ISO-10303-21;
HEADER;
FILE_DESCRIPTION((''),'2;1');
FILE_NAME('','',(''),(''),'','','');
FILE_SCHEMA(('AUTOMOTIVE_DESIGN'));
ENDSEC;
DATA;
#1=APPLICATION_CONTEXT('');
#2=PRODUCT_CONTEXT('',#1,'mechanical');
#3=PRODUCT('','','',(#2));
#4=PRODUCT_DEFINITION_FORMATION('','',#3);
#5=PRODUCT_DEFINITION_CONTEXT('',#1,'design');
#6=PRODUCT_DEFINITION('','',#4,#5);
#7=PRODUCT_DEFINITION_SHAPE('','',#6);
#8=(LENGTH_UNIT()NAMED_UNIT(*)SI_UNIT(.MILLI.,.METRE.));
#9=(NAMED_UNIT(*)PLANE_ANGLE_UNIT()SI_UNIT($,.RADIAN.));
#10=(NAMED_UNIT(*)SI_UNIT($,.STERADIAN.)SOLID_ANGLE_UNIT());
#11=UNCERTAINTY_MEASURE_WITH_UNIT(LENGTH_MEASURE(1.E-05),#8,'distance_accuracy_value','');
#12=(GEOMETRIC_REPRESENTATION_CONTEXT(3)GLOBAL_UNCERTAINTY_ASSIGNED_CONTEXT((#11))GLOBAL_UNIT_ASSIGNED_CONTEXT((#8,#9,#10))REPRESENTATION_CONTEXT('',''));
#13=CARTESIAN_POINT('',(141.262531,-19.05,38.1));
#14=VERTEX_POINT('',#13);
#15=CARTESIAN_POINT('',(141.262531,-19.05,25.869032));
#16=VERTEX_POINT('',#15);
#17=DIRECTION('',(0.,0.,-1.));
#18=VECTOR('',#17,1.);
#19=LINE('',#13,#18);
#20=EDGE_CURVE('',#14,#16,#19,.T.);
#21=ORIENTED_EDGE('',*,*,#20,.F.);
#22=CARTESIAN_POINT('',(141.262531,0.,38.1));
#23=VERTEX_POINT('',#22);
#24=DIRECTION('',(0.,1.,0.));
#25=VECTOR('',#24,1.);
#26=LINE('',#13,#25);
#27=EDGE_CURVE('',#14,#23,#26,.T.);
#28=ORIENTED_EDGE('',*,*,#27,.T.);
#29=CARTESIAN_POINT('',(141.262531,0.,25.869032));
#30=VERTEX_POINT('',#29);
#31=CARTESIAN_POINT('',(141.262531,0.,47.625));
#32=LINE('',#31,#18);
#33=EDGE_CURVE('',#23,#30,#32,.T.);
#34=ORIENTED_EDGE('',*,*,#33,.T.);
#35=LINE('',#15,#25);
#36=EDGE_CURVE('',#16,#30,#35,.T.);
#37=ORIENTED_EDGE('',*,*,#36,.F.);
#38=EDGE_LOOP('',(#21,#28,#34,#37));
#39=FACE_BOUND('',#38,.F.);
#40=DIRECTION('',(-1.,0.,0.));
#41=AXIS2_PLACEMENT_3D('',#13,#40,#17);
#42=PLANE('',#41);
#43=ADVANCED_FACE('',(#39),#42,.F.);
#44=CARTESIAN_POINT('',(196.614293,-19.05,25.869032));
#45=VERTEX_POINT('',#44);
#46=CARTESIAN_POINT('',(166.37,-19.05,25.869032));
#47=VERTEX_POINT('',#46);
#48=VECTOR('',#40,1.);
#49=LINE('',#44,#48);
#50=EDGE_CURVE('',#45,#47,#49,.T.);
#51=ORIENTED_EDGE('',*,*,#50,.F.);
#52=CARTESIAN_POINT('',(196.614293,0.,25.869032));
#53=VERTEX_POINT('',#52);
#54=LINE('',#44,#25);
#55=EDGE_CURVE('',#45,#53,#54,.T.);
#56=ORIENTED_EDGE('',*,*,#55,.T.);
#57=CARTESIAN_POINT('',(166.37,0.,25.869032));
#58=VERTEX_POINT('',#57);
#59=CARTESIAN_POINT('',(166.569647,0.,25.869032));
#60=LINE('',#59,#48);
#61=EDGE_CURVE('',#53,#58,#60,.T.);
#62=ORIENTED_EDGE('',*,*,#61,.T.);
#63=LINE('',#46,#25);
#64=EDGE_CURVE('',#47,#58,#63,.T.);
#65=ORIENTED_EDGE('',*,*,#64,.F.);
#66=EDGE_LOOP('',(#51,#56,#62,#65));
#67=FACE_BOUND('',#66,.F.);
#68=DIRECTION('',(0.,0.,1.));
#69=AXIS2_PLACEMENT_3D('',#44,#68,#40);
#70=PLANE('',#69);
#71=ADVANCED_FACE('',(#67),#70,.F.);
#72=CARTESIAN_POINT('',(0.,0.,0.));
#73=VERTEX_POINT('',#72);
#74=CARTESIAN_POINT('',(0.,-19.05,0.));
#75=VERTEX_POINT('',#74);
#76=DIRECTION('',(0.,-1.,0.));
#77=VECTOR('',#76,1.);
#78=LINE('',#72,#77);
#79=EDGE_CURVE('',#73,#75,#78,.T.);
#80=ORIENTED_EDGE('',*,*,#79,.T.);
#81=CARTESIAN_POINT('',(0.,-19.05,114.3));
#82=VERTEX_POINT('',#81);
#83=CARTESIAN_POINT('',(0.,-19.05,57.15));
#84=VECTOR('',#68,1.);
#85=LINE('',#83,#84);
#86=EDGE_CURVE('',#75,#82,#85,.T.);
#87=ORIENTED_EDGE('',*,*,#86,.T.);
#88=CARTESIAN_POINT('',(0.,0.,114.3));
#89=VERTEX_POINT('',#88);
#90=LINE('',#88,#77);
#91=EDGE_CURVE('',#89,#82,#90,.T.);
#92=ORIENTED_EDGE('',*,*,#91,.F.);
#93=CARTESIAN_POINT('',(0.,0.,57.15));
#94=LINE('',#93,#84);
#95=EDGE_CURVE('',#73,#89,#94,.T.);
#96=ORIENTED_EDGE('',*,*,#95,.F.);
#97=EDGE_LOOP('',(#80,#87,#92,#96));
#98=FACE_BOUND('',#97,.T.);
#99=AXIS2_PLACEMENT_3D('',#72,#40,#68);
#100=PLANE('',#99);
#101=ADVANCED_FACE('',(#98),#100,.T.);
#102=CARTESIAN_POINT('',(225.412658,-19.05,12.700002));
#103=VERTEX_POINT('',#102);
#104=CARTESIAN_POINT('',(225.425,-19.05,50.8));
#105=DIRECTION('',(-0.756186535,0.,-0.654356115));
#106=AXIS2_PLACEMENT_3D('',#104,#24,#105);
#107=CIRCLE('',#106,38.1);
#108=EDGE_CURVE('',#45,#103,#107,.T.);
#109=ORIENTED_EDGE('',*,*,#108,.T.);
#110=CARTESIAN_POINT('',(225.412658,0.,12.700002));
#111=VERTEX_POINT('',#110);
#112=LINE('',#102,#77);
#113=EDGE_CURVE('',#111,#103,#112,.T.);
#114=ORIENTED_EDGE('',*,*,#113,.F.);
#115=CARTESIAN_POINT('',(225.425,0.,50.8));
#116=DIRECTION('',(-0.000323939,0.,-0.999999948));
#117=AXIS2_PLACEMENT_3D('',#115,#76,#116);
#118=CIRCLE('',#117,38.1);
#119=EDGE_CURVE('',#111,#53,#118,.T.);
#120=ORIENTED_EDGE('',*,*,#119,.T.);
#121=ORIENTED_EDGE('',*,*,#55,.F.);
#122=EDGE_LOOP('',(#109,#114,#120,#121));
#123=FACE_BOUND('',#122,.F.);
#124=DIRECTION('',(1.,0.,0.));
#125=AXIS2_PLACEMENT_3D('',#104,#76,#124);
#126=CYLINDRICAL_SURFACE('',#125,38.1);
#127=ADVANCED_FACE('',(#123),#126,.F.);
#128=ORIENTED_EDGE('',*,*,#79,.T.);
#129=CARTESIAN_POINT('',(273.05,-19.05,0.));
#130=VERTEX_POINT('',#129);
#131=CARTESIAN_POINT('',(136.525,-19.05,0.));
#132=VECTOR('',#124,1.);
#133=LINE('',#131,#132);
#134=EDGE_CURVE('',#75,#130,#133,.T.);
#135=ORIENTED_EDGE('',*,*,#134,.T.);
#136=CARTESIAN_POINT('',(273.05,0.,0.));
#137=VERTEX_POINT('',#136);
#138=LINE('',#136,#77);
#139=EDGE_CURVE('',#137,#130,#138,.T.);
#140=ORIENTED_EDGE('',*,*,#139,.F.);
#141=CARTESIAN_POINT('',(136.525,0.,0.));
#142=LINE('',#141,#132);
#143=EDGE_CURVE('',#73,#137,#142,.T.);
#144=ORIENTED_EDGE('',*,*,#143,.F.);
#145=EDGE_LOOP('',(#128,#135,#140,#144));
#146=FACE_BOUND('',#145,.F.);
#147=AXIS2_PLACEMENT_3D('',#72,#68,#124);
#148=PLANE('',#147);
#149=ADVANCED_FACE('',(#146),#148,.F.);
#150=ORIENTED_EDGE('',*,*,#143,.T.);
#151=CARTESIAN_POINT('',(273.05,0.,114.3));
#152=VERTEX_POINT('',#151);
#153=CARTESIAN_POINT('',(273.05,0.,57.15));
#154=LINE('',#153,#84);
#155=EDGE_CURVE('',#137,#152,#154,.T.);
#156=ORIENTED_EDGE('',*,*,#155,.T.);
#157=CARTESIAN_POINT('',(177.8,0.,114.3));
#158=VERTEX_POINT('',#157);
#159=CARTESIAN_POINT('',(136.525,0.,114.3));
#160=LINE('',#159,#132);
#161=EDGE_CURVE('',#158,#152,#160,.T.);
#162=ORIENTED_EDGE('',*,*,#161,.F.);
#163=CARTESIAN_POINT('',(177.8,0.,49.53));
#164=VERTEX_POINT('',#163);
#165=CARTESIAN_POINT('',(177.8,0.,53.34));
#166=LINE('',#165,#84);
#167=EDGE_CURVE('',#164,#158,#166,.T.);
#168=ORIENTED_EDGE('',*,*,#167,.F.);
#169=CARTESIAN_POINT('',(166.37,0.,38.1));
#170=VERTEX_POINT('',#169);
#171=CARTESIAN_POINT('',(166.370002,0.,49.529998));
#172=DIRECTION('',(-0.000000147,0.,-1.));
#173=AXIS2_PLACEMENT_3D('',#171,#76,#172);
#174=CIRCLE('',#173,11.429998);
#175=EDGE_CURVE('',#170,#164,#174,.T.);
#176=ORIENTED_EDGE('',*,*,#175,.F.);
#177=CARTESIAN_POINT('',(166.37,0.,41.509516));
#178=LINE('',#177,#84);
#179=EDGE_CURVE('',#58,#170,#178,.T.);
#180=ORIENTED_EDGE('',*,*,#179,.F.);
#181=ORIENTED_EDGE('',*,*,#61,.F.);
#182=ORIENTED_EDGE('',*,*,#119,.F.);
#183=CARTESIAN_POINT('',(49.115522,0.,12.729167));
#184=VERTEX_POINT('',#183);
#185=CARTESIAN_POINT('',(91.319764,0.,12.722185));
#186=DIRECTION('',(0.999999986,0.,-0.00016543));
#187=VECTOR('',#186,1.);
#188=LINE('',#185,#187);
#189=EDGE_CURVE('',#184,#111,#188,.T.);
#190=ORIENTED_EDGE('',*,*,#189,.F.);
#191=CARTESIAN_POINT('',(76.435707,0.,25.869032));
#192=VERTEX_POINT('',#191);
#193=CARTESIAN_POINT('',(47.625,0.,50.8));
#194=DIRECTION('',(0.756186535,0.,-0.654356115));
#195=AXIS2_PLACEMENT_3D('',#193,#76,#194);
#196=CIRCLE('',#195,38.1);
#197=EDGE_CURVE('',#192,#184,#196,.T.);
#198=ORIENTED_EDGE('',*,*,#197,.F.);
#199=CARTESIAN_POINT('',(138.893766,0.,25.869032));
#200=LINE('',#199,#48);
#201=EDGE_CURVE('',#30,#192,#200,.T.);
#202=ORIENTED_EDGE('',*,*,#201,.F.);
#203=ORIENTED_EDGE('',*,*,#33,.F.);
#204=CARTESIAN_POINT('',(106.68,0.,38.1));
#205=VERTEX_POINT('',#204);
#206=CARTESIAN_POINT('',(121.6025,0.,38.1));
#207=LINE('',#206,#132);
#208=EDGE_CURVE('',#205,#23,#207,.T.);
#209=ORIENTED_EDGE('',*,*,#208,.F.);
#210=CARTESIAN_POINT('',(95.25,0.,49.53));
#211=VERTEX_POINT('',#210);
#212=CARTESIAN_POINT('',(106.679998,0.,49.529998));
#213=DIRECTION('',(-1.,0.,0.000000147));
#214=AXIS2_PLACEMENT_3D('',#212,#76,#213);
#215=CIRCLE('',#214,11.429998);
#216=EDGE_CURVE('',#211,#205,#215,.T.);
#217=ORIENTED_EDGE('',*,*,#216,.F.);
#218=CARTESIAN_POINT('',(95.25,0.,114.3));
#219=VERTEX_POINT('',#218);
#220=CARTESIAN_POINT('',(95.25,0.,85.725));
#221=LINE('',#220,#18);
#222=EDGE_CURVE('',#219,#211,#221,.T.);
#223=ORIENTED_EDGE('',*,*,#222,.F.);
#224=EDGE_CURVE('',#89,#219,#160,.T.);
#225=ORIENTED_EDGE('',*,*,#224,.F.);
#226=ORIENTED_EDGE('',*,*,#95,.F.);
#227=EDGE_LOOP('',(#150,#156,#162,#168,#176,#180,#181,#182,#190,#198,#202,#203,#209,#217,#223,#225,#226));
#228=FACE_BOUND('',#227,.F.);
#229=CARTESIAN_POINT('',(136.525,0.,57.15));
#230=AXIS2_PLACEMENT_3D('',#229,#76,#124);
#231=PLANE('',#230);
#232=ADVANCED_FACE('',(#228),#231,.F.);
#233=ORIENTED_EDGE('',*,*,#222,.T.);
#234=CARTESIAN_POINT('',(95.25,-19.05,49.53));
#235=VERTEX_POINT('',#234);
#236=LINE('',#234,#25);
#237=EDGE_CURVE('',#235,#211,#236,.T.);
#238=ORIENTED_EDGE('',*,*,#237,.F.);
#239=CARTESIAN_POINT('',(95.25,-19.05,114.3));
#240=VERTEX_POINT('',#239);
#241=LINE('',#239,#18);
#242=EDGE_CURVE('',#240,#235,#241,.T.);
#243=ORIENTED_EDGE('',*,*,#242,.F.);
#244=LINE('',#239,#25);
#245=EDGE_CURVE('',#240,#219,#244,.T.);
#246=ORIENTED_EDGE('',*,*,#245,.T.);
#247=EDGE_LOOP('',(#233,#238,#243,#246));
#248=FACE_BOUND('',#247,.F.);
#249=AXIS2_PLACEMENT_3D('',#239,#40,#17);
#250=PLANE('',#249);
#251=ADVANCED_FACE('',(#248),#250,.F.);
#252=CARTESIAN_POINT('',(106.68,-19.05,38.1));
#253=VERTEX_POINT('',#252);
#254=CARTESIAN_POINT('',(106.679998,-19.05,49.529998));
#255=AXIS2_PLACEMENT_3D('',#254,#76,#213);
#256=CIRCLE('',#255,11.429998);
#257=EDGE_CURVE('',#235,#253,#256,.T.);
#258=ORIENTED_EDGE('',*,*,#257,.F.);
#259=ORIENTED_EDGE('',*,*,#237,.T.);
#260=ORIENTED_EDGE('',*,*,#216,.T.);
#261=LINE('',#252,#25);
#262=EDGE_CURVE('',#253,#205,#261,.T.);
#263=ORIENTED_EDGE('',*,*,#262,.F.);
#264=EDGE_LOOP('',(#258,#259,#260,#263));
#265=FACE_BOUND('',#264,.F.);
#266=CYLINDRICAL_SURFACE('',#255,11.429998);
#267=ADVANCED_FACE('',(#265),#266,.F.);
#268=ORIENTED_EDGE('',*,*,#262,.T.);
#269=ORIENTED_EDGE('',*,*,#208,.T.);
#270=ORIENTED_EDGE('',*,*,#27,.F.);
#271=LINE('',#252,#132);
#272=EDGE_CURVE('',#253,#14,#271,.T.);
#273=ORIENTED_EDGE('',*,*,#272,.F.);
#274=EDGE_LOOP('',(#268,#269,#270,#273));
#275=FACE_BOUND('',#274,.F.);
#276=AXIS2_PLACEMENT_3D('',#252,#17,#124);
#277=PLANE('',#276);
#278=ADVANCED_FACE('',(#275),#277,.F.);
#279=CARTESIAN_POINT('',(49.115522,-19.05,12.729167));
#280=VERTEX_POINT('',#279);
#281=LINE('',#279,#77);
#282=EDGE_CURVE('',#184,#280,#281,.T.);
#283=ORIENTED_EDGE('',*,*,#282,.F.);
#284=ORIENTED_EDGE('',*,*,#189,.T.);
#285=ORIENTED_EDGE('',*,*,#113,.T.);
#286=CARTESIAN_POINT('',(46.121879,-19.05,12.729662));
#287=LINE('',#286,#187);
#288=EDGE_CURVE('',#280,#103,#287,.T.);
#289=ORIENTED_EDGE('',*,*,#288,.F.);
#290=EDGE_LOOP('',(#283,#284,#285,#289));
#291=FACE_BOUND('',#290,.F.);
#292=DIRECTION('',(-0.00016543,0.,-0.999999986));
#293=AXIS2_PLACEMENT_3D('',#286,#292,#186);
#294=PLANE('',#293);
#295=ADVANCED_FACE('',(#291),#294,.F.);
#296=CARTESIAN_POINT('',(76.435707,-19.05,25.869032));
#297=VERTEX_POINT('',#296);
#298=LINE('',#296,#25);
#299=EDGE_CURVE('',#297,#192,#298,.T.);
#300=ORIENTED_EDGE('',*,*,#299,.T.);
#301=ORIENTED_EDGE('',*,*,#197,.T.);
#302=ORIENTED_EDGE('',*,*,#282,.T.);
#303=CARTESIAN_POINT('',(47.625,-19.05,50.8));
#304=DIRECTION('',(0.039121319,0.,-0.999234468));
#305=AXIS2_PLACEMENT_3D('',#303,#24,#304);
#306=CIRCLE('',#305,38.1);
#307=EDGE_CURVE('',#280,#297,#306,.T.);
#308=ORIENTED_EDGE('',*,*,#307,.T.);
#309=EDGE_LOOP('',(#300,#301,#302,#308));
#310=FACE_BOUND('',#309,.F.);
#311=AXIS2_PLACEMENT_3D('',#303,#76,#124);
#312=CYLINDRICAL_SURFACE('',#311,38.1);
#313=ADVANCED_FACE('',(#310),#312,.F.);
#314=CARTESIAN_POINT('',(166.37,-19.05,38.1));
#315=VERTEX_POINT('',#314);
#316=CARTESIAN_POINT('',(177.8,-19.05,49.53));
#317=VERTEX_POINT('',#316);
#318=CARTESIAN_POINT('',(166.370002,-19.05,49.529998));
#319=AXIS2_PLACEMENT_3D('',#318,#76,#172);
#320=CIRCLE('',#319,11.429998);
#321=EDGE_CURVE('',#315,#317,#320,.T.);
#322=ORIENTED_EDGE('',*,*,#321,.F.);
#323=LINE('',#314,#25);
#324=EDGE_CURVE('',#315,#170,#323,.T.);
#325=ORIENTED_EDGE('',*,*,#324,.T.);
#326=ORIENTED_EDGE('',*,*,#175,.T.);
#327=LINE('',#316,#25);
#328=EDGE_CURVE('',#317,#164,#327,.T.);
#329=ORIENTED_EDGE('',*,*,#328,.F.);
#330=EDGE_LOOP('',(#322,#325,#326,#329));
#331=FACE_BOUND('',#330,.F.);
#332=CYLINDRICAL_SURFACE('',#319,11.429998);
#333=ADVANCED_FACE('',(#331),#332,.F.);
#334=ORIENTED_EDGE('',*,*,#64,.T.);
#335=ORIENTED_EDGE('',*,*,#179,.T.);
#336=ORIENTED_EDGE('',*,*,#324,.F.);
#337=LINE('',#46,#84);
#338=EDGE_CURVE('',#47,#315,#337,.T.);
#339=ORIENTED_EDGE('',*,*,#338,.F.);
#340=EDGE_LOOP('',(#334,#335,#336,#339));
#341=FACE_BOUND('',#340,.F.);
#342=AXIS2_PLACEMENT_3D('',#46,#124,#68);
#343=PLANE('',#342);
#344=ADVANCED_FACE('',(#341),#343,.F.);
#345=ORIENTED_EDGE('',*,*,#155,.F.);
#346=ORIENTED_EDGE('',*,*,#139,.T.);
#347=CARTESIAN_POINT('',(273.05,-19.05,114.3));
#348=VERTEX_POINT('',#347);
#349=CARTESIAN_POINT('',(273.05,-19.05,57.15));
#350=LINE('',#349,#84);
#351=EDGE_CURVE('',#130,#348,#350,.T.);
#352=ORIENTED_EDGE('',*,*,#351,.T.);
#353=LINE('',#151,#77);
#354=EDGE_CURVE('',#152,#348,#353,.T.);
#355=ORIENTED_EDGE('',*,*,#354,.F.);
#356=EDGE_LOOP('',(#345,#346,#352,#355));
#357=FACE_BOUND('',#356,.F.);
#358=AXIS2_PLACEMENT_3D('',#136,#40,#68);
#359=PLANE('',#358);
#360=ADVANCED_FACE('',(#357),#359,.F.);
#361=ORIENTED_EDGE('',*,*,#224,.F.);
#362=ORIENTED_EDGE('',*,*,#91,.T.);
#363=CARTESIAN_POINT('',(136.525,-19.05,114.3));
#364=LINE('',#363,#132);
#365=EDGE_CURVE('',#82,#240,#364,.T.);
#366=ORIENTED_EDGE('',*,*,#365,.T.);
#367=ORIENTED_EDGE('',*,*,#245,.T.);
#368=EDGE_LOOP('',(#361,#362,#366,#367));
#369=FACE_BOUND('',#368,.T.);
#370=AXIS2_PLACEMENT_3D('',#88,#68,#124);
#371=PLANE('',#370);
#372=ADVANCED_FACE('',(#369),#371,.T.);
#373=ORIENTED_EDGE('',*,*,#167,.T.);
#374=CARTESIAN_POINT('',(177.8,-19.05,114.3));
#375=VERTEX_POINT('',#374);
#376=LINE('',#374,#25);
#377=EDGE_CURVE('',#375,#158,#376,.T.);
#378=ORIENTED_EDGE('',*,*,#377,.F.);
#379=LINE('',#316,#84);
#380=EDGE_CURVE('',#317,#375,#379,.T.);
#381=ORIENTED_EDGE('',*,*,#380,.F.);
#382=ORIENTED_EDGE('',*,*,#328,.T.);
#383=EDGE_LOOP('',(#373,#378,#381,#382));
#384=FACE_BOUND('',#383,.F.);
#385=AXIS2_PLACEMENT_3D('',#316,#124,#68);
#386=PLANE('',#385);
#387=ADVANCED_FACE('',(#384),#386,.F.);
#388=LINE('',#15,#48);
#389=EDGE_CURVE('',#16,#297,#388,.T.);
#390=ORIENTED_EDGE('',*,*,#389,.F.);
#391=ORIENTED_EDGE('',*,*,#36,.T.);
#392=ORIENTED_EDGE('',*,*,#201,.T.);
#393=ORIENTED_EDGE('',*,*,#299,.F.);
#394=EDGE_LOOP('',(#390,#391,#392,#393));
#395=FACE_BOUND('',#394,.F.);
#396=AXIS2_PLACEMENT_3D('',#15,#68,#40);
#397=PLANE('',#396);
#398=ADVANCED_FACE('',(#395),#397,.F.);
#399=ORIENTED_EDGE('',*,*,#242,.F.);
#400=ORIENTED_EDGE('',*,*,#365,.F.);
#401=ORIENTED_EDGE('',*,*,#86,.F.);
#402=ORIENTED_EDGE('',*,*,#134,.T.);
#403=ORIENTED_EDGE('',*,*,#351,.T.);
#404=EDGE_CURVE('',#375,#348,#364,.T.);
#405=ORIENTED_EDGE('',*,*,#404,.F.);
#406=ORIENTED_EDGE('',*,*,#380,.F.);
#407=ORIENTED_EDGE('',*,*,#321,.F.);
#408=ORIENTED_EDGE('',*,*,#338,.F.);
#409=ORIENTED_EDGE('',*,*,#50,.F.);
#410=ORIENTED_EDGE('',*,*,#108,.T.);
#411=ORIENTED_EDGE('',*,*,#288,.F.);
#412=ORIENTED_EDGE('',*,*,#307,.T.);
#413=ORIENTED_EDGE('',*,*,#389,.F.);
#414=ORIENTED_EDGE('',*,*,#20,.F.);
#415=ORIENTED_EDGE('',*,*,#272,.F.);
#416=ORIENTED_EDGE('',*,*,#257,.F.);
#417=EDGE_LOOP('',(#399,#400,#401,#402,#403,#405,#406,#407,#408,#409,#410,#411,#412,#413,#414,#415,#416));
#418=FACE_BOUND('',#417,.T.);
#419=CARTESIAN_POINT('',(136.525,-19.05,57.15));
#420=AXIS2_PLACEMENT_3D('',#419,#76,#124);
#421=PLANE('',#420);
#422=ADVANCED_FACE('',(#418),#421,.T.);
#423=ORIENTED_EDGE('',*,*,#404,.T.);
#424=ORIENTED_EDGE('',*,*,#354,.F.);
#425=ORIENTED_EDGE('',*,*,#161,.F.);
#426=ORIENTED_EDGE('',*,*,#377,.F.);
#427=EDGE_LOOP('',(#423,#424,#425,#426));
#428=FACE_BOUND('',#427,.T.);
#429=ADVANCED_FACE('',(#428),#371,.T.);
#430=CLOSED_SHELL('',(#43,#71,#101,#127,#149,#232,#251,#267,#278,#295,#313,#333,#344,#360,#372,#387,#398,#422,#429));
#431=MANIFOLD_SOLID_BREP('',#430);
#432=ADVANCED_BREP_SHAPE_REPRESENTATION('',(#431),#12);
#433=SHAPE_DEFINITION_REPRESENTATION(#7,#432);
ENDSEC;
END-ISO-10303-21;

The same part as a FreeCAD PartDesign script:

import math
import FreeCAD as App
import Part
import Sketcher
Q = App.Units.Quantity


def add_polygon(sketch, points):
    """Adds a closed chain of lines whose ends are joined by coincident constraints."""
    first, n = sketch.GeometryCount, len(points)
    for a, b in zip(points, points[1:] + points[:1]):
        sketch.addGeometry(Part.LineSegment(App.Vector(*a, 0), App.Vector(*b, 0)), False)
    for i in range(n):
        sketch.addConstraint(Sketcher.Constraint("Coincident", first + i, 2, first + (i + 1) % n, 1))

doc = App.newDocument("Part")
body = doc.addObject("PartDesign::Body", "Body")

sketch1 = body.newObject("Sketcher::SketchObject", "Sketch")
sketch1.AttachmentSupport = (doc.getObject("XZ_Plane"), [""])
sketch1.MapMode = "FlatFace"
add_polygon(sketch1, [(0, 114.3), (0, 0), (273.05, 0), (273.05, 114.3)])
sketch1.addConstraint([
    Sketcher.Constraint("Vertical", 0),
    Sketcher.Constraint("Horizontal", 1),
    Sketcher.Constraint("Vertical", 2),
    Sketcher.Constraint("Horizontal", 3),
    Sketcher.Constraint("Coincident", 0, 2, -1, 1),
    Sketcher.Constraint("DistanceY", 0, 2, 0, 1, Q("4.5 in")),
    Sketcher.Constraint("DistanceX", 1, 1, 1, 2, Q("10.75 in")),
])
pad1 = body.newObject("PartDesign::Pad", "Pad")
pad1.Profile = sketch1
pad1.Length = Q("0.75 in")

sketch2 = body.newObject("Sketcher::SketchObject", "Sketch001")
sketch2.AttachmentSupport = (doc.getObject("XZ_Plane"), [""])
sketch2.MapMode = "FlatFace"
sketch2.AttachmentOffset = App.Placement(App.Vector(0, 0, 0.75 * 25.4), App.Rotation())
sketch2.addGeometry([
    Part.Circle(App.Vector(47.625, 50.8, 0), App.Vector(0, 0, 1), 38.1),
    Part.Circle(App.Vector(225.425, 50.8, 0), App.Vector(0, 0, 1), 38.1),
], False)
sketch2.addConstraint([
    Sketcher.Constraint("Equal", 0, 1),
    Sketcher.Constraint("Horizontal", 0, 3, 1, 3),
    Sketcher.Constraint("Diameter", 0, Q("3 in")),
    Sketcher.Constraint("DistanceY", -1, 1, 0, 3, Q("2 in")),
    Sketcher.Constraint("DistanceX", 0, 3, 1, 3, Q("7 in")),
    Sketcher.Constraint("DistanceX", -1, 1, 0, 3, Q("1.875 in")),
])
pocket1 = body.newObject("PartDesign::Pocket", "Pocket")
pocket1.Profile = sketch2
pocket1.Length = Q("1 in")

sketch3 = body.newObject("Sketcher::SketchObject", "Sketch002")
sketch3.AttachmentSupport = (doc.getObject("XZ_Plane"), [""])
sketch3.MapMode = "FlatFace"
sketch3.AttachmentOffset = App.Placement(App.Vector(0, 0, 0.75 * 25.4), App.Rotation())
sketch3.addGeometry([
    Part.LineSegment(App.Vector(177.8, 114.3, 0), App.Vector(95.25, 114.3, 0)),
    Part.LineSegment(App.Vector(95.25, 114.3, 0), App.Vector(95.25, 49.53, 0)),
    Part.ArcOfCircle(Part.Circle(App.Vector(106.679998, 49.529998, 0), App.Vector(0, 0, 1), 11.429998), math.radians(179.999992), math.radians(270.000008)),
    Part.LineSegment(App.Vector(106.68, 38.1, 0), App.Vector(166.37, 38.1, 0)),
    Part.ArcOfCircle(Part.Circle(App.Vector(166.370002, 49.529998, 0), App.Vector(0, 0, 1), 11.429998), math.radians(-90.000008), math.radians(0.000008)),
    Part.LineSegment(App.Vector(177.8, 49.53, 0), App.Vector(177.8, 114.3, 0)),
], False)
sketch3.addConstraint([
    Sketcher.Constraint("Coincident", 0, 2, 1, 1),
    Sketcher.Constraint("Tangent", 1, 2, 2, 1),
    Sketcher.Constraint("Tangent", 2, 2, 3, 1),
    Sketcher.Constraint("Tangent", 3, 2, 4, 1),
    Sketcher.Constraint("Tangent", 4, 2, 5, 1),
    Sketcher.Constraint("Coincident", 5, 2, 0, 1),
    Sketcher.Constraint("Horizontal", 0),
    Sketcher.Constraint("Vertical", 1),
    Sketcher.Constraint("Horizontal", 3),
    Sketcher.Constraint("Vertical", 5),
    Sketcher.Constraint("Equal", 2, 4),
    Sketcher.Constraint("Radius", 2, Q("0.4499999 in")),
    Sketcher.Constraint("DistanceX", -1, 1, 4, 2, Q("7 in")),
    Sketcher.Constraint("DistanceY", 2, 2, 0, 2, Q("3 in")),
    Sketcher.Constraint("DistanceX", 0, 2, 0, 1, Q("3.25 in")),
    Sketcher.Constraint("DistanceY", -1, 1, 0, 2, Q("4.5 in")),
])
pocket2 = body.newObject("PartDesign::Pocket", "Pocket001")
pocket2.Profile = sketch3
pocket2.Length = Q("1 in")

sketch4 = body.newObject("Sketcher::SketchObject", "Sketch003")
sketch4.AttachmentSupport = (doc.getObject("XZ_Plane"), [""])
sketch4.MapMode = "FlatFace"
sketch4.AttachmentOffset = App.Placement(App.Vector(0, 0, 0.75 * 25.4), App.Rotation())
add_polygon(sketch4, [(166.37, 25.869032), (166.37, 38.1), (141.262531, 38.1), (141.262531, 25.869032), (76.435707, 25.869032), (46.121879, 12.729662), (225.418697, 12.700001), (196.614293, 25.869032)])
sketch4.addConstraint([
    Sketcher.Constraint("Vertical", 0),
    Sketcher.Constraint("Horizontal", 1),
    Sketcher.Constraint("Vertical", 2),
    Sketcher.Constraint("Horizontal", 3),
    Sketcher.Constraint("Horizontal", 7),
    Sketcher.Constraint("Horizontal", 3, 2, 6, 2),
    Sketcher.Constraint("DistanceY", 5, 2, 0, 2, Q("1 in")),
    Sketcher.Constraint("DistanceY", -1, 1, 0, 2, Q("1.5 in")),
    Sketcher.Constraint("DistanceX", -1, 1, 0, 2, Q("6.55 in")),
    Sketcher.Constraint("DistanceX", 1, 2, 1, 1, 25.107469),
    Sketcher.Constraint("DistanceY", 0, 1, 0, 2, 12.230968),
    Sketcher.Constraint("Distance", 5, 179.29682),
    Sketcher.Constraint("DistanceX", 3, 2, 3, 1, 64.826824),
    Sketcher.Constraint("DistanceX", 7, 2, 7, 1, 30.244293),
    Sketcher.Constraint("DistanceX", -1, 1, 4, 2, 46.121879),
    Sketcher.Constraint("DistanceY", -1, 1, 4, 2, 12.729662),
])
pocket3 = body.newObject("PartDesign::Pocket", "Pocket002")
pocket3.Profile = sketch4
pocket3.Length = Q("1 in")

doc.recompute()
